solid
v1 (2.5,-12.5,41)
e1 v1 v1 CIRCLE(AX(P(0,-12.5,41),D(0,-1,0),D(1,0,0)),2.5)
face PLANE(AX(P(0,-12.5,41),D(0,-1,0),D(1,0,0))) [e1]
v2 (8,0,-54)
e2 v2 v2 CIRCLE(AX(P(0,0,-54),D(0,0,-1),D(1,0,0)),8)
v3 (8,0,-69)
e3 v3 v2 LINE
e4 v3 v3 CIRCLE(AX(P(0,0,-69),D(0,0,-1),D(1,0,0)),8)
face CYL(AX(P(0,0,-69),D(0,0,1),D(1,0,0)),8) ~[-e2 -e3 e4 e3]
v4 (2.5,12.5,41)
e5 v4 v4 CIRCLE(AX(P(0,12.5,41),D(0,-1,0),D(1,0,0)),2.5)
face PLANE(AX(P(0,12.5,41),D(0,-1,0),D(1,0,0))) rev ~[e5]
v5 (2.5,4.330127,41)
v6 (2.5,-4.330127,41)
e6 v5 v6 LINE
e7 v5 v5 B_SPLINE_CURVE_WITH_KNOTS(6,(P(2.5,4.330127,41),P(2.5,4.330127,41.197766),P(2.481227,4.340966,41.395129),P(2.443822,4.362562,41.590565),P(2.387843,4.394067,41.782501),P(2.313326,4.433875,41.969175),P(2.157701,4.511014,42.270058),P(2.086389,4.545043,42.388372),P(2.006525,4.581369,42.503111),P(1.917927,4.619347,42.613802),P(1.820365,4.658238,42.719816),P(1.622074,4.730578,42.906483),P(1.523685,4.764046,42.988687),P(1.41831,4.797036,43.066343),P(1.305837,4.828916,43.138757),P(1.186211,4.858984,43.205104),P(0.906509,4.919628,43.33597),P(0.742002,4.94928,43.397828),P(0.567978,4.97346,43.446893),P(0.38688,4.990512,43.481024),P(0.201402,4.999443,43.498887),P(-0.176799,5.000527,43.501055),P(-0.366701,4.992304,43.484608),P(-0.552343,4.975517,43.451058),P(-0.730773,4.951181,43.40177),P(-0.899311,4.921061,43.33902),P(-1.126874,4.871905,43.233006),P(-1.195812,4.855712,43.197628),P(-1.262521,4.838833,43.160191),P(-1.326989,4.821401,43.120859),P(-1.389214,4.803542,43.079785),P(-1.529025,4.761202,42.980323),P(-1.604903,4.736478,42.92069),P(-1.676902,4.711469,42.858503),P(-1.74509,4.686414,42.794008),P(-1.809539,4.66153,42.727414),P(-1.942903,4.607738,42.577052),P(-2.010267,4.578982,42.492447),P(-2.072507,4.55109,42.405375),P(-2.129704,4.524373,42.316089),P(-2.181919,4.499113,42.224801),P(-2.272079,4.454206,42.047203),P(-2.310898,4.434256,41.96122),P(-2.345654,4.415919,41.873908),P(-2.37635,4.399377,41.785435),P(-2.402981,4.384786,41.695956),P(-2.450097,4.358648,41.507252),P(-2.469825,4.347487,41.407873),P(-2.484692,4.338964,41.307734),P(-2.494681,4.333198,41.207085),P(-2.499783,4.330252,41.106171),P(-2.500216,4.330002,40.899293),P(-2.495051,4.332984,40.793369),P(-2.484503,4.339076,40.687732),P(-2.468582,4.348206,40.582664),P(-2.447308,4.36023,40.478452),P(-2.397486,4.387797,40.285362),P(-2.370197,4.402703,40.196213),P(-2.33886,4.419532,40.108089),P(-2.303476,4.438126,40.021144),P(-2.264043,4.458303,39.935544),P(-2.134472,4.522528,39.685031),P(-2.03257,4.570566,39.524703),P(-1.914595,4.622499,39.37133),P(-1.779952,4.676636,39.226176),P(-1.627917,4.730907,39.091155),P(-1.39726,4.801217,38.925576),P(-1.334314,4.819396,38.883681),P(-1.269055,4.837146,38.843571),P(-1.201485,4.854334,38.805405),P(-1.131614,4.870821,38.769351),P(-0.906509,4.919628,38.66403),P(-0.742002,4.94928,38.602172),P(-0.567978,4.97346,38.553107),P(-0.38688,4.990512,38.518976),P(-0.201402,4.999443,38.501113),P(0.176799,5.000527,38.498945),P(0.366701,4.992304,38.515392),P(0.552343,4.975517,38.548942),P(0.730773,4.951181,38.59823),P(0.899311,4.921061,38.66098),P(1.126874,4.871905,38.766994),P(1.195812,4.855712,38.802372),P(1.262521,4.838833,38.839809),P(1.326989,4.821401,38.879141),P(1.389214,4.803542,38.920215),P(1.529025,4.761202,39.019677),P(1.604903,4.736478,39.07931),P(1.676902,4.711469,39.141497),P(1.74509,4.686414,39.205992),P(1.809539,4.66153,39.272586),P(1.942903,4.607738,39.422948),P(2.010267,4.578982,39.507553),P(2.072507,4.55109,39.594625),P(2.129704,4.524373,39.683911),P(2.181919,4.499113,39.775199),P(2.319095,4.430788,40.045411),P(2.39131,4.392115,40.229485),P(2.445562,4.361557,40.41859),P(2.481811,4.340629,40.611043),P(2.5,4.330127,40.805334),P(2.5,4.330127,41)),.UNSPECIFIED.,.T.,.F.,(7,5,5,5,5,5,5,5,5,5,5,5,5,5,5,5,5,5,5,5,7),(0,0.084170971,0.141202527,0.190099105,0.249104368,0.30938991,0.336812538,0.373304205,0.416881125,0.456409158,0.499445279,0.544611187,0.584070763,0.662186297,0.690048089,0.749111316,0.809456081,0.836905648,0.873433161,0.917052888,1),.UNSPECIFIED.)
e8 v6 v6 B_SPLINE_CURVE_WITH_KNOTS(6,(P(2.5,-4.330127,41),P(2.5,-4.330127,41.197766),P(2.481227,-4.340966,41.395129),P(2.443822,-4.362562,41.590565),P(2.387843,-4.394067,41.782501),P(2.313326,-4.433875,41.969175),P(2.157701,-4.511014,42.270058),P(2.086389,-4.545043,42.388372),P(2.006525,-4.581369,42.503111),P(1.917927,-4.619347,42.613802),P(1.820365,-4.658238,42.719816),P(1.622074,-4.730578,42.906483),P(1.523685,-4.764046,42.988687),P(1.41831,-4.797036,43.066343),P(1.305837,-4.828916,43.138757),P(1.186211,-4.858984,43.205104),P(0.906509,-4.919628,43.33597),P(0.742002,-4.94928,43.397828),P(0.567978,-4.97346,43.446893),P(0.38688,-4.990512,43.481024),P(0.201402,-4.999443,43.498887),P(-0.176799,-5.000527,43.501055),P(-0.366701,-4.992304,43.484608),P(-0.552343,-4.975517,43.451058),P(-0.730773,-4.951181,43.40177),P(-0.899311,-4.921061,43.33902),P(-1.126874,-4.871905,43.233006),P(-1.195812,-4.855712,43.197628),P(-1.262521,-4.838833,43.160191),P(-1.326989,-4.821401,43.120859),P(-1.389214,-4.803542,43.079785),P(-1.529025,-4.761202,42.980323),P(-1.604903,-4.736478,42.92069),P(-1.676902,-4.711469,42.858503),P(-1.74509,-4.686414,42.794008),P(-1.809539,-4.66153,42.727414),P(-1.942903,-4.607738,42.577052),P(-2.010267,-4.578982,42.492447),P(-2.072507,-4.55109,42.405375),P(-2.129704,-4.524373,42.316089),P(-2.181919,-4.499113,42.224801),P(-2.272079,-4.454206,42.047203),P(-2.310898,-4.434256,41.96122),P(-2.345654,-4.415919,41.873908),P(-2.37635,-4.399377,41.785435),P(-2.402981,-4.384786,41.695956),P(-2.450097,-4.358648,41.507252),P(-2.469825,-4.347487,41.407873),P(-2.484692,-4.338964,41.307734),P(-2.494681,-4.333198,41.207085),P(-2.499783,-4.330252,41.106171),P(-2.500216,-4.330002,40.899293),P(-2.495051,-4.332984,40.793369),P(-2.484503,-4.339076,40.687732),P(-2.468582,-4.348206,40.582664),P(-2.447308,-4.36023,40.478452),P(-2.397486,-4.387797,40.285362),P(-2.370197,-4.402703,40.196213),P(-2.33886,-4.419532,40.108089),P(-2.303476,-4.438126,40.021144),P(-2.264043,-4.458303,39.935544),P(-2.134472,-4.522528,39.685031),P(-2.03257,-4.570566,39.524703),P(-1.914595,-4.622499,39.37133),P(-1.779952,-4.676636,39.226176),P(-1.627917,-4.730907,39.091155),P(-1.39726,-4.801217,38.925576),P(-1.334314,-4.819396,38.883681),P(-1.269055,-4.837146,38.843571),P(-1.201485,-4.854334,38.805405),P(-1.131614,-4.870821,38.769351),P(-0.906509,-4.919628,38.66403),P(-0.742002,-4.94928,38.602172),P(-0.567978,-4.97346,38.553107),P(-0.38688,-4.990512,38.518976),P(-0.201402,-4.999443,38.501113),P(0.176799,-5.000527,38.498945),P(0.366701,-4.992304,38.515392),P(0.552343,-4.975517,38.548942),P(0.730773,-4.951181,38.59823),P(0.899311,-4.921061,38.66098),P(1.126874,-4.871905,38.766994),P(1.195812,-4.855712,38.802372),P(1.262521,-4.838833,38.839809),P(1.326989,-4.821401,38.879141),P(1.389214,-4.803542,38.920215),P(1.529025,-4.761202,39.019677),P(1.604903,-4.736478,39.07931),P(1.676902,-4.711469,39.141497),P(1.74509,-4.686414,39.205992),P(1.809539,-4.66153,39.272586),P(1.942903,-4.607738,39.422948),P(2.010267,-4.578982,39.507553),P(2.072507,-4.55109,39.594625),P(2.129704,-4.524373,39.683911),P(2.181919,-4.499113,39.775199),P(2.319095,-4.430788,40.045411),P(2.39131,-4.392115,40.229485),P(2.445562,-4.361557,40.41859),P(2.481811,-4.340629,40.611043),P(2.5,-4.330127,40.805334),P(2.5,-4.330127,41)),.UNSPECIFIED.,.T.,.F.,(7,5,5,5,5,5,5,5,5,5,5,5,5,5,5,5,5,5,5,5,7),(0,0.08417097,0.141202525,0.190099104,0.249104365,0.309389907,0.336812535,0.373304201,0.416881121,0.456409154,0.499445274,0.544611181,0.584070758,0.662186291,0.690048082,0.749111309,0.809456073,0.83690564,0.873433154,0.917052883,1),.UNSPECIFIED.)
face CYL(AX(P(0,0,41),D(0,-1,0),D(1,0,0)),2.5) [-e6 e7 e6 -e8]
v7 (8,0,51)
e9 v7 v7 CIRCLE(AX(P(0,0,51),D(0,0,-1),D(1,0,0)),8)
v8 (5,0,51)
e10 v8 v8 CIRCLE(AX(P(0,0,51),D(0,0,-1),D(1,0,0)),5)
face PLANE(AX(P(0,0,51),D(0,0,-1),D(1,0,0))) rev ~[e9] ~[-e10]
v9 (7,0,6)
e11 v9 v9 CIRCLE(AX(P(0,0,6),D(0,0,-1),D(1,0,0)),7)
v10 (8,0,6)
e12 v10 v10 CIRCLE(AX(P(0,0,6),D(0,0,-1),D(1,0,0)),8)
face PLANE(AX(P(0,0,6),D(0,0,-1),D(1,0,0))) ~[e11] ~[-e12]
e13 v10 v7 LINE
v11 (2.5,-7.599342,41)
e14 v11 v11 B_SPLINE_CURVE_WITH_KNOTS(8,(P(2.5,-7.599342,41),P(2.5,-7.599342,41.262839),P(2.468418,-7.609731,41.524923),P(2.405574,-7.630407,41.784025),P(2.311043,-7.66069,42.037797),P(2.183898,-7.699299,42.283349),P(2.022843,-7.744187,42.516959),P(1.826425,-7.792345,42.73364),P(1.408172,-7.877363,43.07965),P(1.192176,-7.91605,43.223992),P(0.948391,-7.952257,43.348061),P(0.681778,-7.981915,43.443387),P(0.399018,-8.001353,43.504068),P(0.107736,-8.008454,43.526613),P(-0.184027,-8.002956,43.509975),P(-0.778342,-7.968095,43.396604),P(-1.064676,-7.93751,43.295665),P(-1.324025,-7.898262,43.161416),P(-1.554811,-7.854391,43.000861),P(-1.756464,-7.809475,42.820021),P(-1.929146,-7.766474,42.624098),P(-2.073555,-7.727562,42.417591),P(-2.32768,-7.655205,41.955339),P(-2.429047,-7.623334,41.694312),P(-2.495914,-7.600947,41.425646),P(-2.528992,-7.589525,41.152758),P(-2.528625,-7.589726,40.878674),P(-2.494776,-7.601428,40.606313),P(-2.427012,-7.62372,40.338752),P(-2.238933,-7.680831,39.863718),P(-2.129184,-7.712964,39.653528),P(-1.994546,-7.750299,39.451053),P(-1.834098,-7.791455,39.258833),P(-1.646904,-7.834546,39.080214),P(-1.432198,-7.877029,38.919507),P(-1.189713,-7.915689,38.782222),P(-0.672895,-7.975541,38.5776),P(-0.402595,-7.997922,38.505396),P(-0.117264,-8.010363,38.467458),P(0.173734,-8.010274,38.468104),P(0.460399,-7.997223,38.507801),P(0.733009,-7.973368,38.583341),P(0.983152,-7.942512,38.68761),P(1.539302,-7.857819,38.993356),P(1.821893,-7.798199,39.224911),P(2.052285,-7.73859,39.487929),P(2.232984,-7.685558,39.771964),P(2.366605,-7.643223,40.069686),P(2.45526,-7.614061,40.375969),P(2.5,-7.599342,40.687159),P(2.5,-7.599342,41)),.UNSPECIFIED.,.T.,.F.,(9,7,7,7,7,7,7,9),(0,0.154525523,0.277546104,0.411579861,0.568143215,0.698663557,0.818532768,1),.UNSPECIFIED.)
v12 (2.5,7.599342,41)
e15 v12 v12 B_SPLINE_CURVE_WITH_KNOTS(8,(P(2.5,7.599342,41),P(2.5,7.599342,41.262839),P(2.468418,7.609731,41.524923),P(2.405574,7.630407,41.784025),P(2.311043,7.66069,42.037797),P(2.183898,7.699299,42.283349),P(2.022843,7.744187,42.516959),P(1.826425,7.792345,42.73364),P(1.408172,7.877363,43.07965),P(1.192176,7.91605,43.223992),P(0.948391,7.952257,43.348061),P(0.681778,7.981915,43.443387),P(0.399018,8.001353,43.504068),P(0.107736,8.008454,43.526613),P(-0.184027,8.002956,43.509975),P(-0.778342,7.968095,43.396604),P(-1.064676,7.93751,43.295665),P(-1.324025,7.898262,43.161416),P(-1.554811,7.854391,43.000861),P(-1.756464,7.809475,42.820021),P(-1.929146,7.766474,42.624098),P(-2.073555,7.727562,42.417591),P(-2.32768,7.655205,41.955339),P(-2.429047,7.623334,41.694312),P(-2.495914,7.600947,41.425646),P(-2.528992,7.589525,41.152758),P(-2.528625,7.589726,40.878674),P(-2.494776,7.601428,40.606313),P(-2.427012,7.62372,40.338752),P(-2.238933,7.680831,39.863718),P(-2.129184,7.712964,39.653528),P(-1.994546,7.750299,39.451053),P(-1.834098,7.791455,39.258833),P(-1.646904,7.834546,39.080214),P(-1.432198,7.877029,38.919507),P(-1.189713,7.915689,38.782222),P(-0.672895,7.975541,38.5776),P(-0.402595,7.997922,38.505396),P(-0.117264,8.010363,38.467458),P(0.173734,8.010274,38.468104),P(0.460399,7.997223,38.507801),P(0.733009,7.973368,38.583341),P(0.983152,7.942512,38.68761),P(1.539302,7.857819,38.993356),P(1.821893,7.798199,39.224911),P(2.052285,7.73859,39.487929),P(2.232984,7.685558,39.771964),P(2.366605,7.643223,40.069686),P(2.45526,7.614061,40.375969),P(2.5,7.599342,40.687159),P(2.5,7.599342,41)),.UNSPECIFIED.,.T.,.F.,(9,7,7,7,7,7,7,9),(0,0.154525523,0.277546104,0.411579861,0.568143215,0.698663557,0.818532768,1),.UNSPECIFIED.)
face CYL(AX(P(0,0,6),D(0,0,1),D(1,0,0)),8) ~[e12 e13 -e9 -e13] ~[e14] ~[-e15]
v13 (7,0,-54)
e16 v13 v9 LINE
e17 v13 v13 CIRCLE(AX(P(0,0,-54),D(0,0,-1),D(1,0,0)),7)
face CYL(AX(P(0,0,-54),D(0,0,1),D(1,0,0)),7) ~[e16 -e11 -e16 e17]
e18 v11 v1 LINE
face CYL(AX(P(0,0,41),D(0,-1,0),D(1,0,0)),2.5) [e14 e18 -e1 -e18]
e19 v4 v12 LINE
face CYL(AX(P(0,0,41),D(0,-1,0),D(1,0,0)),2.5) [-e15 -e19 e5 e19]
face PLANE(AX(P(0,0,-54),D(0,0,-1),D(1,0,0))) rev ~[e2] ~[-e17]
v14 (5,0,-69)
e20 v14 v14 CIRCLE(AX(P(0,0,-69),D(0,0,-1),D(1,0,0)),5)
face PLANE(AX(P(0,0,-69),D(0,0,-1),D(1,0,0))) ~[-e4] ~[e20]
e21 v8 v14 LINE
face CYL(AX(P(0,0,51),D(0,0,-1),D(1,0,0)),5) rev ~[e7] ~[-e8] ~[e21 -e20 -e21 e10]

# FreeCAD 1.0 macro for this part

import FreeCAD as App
import Part
import Sketcher

V = App.Vector
Q = App.Units.Quantity


def add_polygon(sketch, points):
    """Adds a closed chain of lines whose ends are joined by coincident constraints."""
    first, n = sketch.GeometryCount, len(points)
    for a, b in zip(points, points[1:] + points[:1]):
        sketch.addGeometry(Part.LineSegment(App.Vector(*a, 0), App.Vector(*b, 0)), False)
    for i in range(n):
        sketch.addConstraint(Sketcher.Constraint("Coincident", first + i, 2, first + (i + 1) % n, 1))

doc = App.newDocument("Part")
params = doc.addObject("Spreadsheet::Sheet", "Params")
for row, (alias, value) in enumerate([
    ("sketch1_width", "3 mm"),
    ("sketch1_width2", "1 mm"),
    ("sketch1_height", "120 mm"),
    ("sketch1_height2", "15 mm"),
    ("sketch1_height3", "60 mm"),
    ("revolution_angle", "360 deg"),
    ("sketch2_diameter", "5 mm"),
    ("pad1_length", "25 mm"),
], start=1):
    params.set(f"A{row}", alias)
    params.set(f"B{row}", "=" + value)
    params.setAlias(f"B{row}", alias)

body = doc.addObject("PartDesign::Body", "Body")

# Sketch on XZ plane
sketch1 = doc.addObject("Sketcher::SketchObject", "Sketch")
body.addObject(sketch1)
sketch1.AttachmentSupport = (doc.XZ_Plane, [""])
sketch1.MapMode = "FlatFace"
add_polygon(sketch1, [(8, 51), (5, 51), (5, -69), (8, -69), (8, -54), (7, -54), (7, 6), (8, 6)])  # lines 0-7
sketch1.addConstraint([
    Sketcher.Constraint("Horizontal", 0),
    Sketcher.Constraint("Vertical", 1),
    Sketcher.Constraint("Horizontal", 2),
    Sketcher.Constraint("Vertical", 3),
    Sketcher.Constraint("Horizontal", 4),
    Sketcher.Constraint("Vertical", 5),
    Sketcher.Constraint("Horizontal", 6),
    Sketcher.Constraint("Vertical", 7),
    Sketcher.Constraint("Vertical", 3, 2, 6, 2),
    Sketcher.Constraint("DistanceX", 0, 2, 0, 1, Q("3 mm")),
    Sketcher.Constraint("DistanceX", 4, 2, 4, 1, Q("1 mm")),
    Sketcher.Constraint("DistanceY", 1, 2, 1, 1, Q("120 mm")),
    Sketcher.Constraint("DistanceY", 3, 1, 3, 2, Q("15 mm")),
    Sketcher.Constraint("DistanceY", 5, 1, 5, 2, Q("60 mm")),
    Sketcher.Constraint("DistanceX", -1, 1, 0, 2, Q("5 mm")),
    Sketcher.Constraint("DistanceY", -1, 1, 0, 2, Q("51 mm")),
])
sketch1.setExpression("Constraints[17]", "Params.sketch1_width")
sketch1.setExpression("Constraints[18]", "Params.sketch1_width2")
sketch1.setExpression("Constraints[19]", "Params.sketch1_height")
sketch1.setExpression("Constraints[20]", "Params.sketch1_height2")
sketch1.setExpression("Constraints[21]", "Params.sketch1_height3")
revolution = doc.addObject("PartDesign::Revolution", "Revolution")
body.addObject(revolution)
revolution.Profile = sketch1
revolution.ReferenceAxis = (sketch1, ["V_Axis"])
revolution.setExpression("Angle", "Params.revolution_angle")

# Sketch on XZ plane
sketch2 = doc.addObject("Sketcher::SketchObject", "Sketch001")
body.addObject(sketch2)
sketch2.AttachmentSupport = (doc.XZ_Plane, [""])
sketch2.MapMode = "FlatFace"
sketch2.addGeometry(Part.Circle(V(0, 41, 0), V(0, 0, 1), 2.5), False)
sketch2.addConstraint([
    Sketcher.Constraint("PointOnObject", 0, 3, -2),
    Sketcher.Constraint("Diameter", 0, Q("5 mm")),
    Sketcher.Constraint("DistanceY", -1, 1, 0, 3, Q("41 mm")),
])
sketch2.setExpression("Constraints[1]", "Params.sketch2_diameter")
pad1 = doc.addObject("PartDesign::Pad", "Pad")
body.addObject(pad1)
pad1.Profile = sketch2
pad1.setExpression("Length", "Params.pad1_length")
pad1.Midplane = True

doc.recompute()
